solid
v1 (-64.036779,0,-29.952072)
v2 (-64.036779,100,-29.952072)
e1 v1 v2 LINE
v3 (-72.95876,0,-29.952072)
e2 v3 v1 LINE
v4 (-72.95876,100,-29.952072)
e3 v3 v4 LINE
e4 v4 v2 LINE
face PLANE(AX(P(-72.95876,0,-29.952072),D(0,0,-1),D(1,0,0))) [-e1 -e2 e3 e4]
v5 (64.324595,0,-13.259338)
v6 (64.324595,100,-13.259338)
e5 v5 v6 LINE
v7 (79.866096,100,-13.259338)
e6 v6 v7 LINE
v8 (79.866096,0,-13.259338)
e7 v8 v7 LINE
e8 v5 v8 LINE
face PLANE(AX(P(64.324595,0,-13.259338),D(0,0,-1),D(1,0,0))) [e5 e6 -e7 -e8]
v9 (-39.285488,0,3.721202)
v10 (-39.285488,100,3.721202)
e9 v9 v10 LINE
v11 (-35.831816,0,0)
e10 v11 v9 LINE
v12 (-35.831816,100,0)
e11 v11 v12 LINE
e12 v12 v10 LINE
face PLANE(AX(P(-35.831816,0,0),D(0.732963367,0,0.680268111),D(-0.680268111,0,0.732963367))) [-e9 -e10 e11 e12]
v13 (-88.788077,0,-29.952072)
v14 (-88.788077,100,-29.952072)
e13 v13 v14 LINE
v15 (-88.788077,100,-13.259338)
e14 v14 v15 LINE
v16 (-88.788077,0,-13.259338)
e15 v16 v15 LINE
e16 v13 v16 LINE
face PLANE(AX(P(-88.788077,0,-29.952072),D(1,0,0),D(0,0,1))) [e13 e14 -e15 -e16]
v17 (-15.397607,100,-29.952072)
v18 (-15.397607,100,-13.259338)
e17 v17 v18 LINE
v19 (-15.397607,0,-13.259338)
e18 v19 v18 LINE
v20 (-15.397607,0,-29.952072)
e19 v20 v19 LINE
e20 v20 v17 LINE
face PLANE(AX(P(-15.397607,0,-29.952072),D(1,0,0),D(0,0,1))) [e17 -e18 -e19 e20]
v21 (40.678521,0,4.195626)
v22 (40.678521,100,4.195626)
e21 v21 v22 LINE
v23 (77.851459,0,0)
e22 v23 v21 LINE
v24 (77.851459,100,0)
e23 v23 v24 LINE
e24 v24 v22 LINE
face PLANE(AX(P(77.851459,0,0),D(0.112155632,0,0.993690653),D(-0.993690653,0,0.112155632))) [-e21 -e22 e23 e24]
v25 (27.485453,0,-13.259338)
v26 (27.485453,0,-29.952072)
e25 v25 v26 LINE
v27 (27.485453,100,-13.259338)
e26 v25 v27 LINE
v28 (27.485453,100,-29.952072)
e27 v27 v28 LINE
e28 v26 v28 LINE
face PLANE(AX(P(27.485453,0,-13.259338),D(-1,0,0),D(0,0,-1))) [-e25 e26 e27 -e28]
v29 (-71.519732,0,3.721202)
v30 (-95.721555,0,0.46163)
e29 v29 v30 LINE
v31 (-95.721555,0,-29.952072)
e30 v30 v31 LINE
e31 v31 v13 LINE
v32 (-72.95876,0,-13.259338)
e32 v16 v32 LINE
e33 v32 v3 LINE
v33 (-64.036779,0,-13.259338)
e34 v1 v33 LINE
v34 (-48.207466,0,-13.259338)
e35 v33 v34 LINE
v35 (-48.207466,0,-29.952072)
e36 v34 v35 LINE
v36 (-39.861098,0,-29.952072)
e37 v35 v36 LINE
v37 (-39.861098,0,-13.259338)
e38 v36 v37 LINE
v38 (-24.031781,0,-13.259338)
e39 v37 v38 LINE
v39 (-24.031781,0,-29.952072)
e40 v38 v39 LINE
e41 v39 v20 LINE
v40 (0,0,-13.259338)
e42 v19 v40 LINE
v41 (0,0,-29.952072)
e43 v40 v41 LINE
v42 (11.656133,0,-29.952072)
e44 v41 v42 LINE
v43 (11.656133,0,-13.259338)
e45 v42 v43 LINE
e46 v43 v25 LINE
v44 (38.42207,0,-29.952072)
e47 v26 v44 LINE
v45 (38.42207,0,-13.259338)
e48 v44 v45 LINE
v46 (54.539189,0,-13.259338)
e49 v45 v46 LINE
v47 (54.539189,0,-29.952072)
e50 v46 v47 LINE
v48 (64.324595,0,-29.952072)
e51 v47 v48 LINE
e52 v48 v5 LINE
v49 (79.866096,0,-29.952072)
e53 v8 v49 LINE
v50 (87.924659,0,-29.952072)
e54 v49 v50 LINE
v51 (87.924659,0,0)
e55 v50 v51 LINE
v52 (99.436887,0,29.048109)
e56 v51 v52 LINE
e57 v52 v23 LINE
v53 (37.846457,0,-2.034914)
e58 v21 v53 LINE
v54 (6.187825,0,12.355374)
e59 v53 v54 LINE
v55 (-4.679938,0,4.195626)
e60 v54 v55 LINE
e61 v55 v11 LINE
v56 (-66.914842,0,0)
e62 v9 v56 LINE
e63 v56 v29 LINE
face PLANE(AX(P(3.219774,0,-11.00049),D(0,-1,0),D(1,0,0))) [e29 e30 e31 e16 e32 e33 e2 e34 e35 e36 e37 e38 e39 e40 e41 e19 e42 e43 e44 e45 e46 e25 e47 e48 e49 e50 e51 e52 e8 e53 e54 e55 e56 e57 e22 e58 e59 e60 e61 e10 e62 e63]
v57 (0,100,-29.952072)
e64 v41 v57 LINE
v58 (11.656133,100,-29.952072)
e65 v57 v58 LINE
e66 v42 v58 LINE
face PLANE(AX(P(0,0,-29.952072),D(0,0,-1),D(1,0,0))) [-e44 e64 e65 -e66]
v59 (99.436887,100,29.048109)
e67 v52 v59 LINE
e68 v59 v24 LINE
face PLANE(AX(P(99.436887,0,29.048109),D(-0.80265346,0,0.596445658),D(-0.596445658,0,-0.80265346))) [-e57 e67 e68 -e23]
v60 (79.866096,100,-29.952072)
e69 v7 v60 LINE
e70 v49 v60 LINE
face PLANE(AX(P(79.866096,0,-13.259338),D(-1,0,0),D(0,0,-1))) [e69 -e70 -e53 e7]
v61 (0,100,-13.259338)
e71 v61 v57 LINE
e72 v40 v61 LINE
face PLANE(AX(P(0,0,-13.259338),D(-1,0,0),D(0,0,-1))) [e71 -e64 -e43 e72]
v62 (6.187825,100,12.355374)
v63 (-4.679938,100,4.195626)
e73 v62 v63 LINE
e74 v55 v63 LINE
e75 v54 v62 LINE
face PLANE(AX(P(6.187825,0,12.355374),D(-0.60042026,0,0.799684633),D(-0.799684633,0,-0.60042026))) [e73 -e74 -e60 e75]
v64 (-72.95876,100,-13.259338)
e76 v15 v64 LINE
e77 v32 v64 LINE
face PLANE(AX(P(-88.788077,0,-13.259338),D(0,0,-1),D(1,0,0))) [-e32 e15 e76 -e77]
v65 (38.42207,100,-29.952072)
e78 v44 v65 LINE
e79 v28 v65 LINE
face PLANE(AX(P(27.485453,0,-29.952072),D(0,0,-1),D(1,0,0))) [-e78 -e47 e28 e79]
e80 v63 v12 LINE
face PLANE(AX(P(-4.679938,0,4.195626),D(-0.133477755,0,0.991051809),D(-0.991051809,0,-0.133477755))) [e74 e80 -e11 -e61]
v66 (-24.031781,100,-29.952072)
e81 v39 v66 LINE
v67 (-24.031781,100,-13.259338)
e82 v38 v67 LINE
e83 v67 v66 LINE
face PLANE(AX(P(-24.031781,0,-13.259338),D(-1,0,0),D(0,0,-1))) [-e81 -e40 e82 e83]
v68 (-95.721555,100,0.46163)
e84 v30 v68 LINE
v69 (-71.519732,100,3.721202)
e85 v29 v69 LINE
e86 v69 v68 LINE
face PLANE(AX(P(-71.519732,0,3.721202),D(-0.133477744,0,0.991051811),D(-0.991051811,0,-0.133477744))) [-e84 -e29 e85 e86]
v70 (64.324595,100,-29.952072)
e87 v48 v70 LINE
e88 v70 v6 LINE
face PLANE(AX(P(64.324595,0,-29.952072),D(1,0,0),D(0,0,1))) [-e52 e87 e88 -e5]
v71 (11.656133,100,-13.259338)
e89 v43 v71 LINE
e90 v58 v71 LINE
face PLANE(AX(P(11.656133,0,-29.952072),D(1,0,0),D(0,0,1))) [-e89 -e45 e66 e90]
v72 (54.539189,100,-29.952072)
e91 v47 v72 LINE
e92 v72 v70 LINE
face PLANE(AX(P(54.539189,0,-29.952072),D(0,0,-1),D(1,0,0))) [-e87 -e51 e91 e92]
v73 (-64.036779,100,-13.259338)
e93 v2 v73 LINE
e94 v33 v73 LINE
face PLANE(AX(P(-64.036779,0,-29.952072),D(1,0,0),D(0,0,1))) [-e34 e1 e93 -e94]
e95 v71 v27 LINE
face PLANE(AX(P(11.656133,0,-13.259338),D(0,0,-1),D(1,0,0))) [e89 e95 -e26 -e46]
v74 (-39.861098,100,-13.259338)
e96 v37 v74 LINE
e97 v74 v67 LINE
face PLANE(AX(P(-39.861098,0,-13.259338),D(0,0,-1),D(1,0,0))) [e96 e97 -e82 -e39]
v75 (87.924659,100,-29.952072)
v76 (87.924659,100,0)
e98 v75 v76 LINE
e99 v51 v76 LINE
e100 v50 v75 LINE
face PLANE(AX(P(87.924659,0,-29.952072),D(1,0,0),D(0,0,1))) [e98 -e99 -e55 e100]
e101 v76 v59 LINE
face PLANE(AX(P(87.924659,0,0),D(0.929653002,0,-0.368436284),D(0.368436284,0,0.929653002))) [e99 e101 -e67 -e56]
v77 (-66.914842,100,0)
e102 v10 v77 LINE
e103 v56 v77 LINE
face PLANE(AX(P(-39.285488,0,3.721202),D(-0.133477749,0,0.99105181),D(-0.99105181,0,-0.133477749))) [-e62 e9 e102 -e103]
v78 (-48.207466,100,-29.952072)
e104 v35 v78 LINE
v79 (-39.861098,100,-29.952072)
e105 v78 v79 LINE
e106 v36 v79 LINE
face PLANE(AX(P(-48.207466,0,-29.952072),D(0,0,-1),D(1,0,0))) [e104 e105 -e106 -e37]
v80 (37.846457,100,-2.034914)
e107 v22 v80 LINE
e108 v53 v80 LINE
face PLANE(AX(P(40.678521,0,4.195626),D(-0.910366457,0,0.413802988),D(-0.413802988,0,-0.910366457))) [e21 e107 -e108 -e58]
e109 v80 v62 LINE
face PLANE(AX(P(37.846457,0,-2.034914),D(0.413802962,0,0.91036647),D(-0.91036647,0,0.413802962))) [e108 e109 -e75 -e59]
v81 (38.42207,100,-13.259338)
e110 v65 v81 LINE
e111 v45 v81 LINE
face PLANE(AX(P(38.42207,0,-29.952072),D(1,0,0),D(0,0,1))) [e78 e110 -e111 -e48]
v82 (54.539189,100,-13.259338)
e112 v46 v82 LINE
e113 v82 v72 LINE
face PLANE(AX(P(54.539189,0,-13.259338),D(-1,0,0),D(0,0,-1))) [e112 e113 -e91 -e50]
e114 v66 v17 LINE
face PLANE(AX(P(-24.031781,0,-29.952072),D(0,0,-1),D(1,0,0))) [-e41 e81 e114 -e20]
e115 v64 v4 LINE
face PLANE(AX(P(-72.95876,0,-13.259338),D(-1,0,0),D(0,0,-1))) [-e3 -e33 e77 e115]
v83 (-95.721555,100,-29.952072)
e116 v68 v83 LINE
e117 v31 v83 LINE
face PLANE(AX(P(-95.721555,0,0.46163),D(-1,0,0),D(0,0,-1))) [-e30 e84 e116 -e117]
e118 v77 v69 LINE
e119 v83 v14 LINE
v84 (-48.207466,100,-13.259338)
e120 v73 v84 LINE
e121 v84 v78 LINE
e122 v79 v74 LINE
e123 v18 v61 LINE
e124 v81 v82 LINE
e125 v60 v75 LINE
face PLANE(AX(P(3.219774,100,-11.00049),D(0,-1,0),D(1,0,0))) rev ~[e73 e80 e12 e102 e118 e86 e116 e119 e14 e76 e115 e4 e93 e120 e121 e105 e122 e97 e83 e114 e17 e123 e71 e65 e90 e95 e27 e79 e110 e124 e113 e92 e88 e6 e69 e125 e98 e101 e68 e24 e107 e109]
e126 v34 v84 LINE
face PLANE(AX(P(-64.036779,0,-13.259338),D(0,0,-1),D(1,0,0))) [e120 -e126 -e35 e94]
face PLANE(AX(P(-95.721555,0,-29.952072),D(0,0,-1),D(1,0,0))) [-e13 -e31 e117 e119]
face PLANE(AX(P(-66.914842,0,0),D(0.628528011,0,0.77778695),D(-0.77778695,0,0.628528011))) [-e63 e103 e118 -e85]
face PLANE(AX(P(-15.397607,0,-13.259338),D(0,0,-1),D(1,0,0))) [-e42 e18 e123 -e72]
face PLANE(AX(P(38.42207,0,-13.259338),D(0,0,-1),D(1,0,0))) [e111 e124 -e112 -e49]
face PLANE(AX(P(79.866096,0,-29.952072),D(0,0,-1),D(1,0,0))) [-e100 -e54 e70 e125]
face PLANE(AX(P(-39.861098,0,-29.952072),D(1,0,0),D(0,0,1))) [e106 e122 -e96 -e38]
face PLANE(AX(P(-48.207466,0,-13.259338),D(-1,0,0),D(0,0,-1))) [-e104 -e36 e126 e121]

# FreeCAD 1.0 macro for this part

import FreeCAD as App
import Part
import Sketcher
from FreeCAD import Vector
Q = App.Units.Quantity

doc = App.newDocument("Part")
params = doc.addObject("Spreadsheet::Sheet", "Params")
for row, (alias, value) in enumerate([
    ("pad1_length", "100 mm"),
], start=1):
    params.set(f"A{row}", alias)
    params.set(f"B{row}", "=" + value)
    params.setAlias(f"B{row}", alias)

body = doc.addObject("PartDesign::Body", "Body")

# Sketch on XZ plane
sketch1 = doc.addObject("Sketcher::SketchObject", "Sketch")
body.addObject(sketch1)
sketch1.AttachmentSupport = (doc.XZ_Plane, [""])
sketch1.MapMode = "FlatFace"
sketch1.addGeometry(Part.LineSegment(Vector(-72, 4, 0), Vector(-96, 0, 0)), False)
sketch1.addGeometry(Part.LineSegment(Vector(-96, 0, 0), Vector(-96, -30, 0)), False)
sketch1.addGeometry(Part.LineSegment(Vector(-96, -30, 0), Vector(-89, -30, 0)), False)
sketch1.addGeometry(Part.LineSegment(Vector(-89, -30, 0), Vector(-89, -13, 0)), False)
sketch1.addGeometry(Part.LineSegment(Vector(-89, -13, 0), Vector(-73, -13, 0)), False)
sketch1.addGeometry(Part.LineSegment(Vector(-73, -13, 0), Vector(-73, -30, 0)), False)
sketch1.addGeometry(Part.LineSegment(Vector(-73, -30, 0), Vector(-64, -30, 0)), False)
sketch1.addGeometry(Part.LineSegment(Vector(-64, -30, 0), Vector(-64, -13, 0)), False)
sketch1.addGeometry(Part.LineSegment(Vector(-64, -13, 0), Vector(-48, -13, 0)), False)
sketch1.addGeometry(Part.LineSegment(Vector(-48, -13, 0), Vector(-48, -30, 0)), False)
sketch1.addGeometry(Part.LineSegment(Vector(-48, -30, 0), Vector(-40, -30, 0)), False)
sketch1.addGeometry(Part.LineSegment(Vector(-40, -30, 0), Vector(-40, -13, 0)), False)
sketch1.addGeometry(Part.LineSegment(Vector(-40, -13, 0), Vector(-24, -13, 0)), False)
sketch1.addGeometry(Part.LineSegment(Vector(-24, -13, 0), Vector(-24, -30, 0)), False)
sketch1.addGeometry(Part.LineSegment(Vector(-24, -30, 0), Vector(-15, -30, 0)), False)
sketch1.addGeometry(Part.LineSegment(Vector(-15, -30, 0), Vector(-15, -13, 0)), False)
sketch1.addGeometry(Part.LineSegment(Vector(-15, -13, 0), Vector(0, -13, 0)), False)
sketch1.addGeometry(Part.LineSegment(Vector(0, -13, 0), Vector(0, -30, 0)), False)
sketch1.addGeometry(Part.LineSegment(Vector(0, -30, 0), Vector(12, -30, 0)), False)
sketch1.addGeometry(Part.LineSegment(Vector(12, -30, 0), Vector(12, -13, 0)), False)
sketch1.addGeometry(Part.LineSegment(Vector(12, -13, 0), Vector(27, -13, 0)), False)
sketch1.addGeometry(Part.LineSegment(Vector(27, -13, 0), Vector(27, -30, 0)), False)
sketch1.addGeometry(Part.LineSegment(Vector(27, -30, 0), Vector(38, -30, 0)), False)
sketch1.addGeometry(Part.LineSegment(Vector(38, -30, 0), Vector(38, -13, 0)), False)
sketch1.addGeometry(Part.LineSegment(Vector(38, -13, 0), Vector(55, -13, 0)), False)
sketch1.addGeometry(Part.LineSegment(Vector(55, -13, 0), Vector(55, -30, 0)), False)
sketch1.addGeometry(Part.LineSegment(Vector(55, -30, 0), Vector(64, -30, 0)), False)
sketch1.addGeometry(Part.LineSegment(Vector(64, -30, 0), Vector(64, -13, 0)), False)
sketch1.addGeometry(Part.LineSegment(Vector(64, -13, 0), Vector(80, -13, 0)), False)
sketch1.addGeometry(Part.LineSegment(Vector(80, -13, 0), Vector(80, -30, 0)), False)
sketch1.addGeometry(Part.LineSegment(Vector(80, -30, 0), Vector(88, -30, 0)), False)
sketch1.addGeometry(Part.LineSegment(Vector(88, -30, 0), Vector(88, 0, 0)), False)
sketch1.addGeometry(Part.LineSegment(Vector(88, 0, 0), Vector(99, 29, 0)), False)
sketch1.addGeometry(Part.LineSegment(Vector(99, 29, 0), Vector(78, 0, 0)), False)
sketch1.addGeometry(Part.LineSegment(Vector(78, 0, 0), Vector(41, 4, 0)), False)
sketch1.addGeometry(Part.LineSegment(Vector(41, 4, 0), Vector(38, -2, 0)), False)
sketch1.addGeometry(Part.LineSegment(Vector(38, -2, 0), Vector(6, 12, 0)), False)
sketch1.addGeometry(Part.LineSegment(Vector(6, 12, 0), Vector(-5, 4, 0)), False)
sketch1.addGeometry(Part.LineSegment(Vector(-5, 4, 0), Vector(-36, 0, 0)), False)
sketch1.addGeometry(Part.LineSegment(Vector(-36, 0, 0), Vector(-39, 4, 0)), False)
sketch1.addGeometry(Part.LineSegment(Vector(-39, 4, 0), Vector(-67, 0, 0)), False)
sketch1.addGeometry(Part.LineSegment(Vector(-67, 0, 0), Vector(-72, 4, 0)), False)
sketch1.addConstraint(Sketcher.Constraint("Coincident", 0, 2, 1, 1))
sketch1.addConstraint(Sketcher.Constraint("Coincident", 1, 2, 2, 1))
sketch1.addConstraint(Sketcher.Constraint("Coincident", 2, 2, 3, 1))
sketch1.addConstraint(Sketcher.Constraint("Coincident", 3, 2, 4, 1))
sketch1.addConstraint(Sketcher.Constraint("Coincident", 4, 2, 5, 1))
sketch1.addConstraint(Sketcher.Constraint("Coincident", 5, 2, 6, 1))
sketch1.addConstraint(Sketcher.Constraint("Coincident", 6, 2, 7, 1))
sketch1.addConstraint(Sketcher.Constraint("Coincident", 7, 2, 8, 1))
sketch1.addConstraint(Sketcher.Constraint("Coincident", 8, 2, 9, 1))
sketch1.addConstraint(Sketcher.Constraint("Coincident", 9, 2, 10, 1))
sketch1.addConstraint(Sketcher.Constraint("Coincident", 10, 2, 11, 1))
sketch1.addConstraint(Sketcher.Constraint("Coincident", 11, 2, 12, 1))
sketch1.addConstraint(Sketcher.Constraint("Coincident", 12, 2, 13, 1))
sketch1.addConstraint(Sketcher.Constraint("Coincident", 13, 2, 14, 1))
sketch1.addConstraint(Sketcher.Constraint("Coincident", 14, 2, 15, 1))
sketch1.addConstraint(Sketcher.Constraint("Coincident", 15, 2, 16, 1))
sketch1.addConstraint(Sketcher.Constraint("Coincident", 16, 2, 17, 1))
sketch1.addConstraint(Sketcher.Constraint("Coincident", 17, 2, 18, 1))
sketch1.addConstraint(Sketcher.Constraint("Coincident", 18, 2, 19, 1))
sketch1.addConstraint(Sketcher.Constraint("Coincident", 19, 2, 20, 1))
sketch1.addConstraint(Sketcher.Constraint("Coincident", 20, 2, 21, 1))
sketch1.addConstraint(Sketcher.Constraint("Coincident", 21, 2, 22, 1))
sketch1.addConstraint(Sketcher.Constraint("Coincident", 22, 2, 23, 1))
sketch1.addConstraint(Sketcher.Constraint("Coincident", 23, 2, 24, 1))
sketch1.addConstraint(Sketcher.Constraint("Coincident", 24, 2, 25, 1))
sketch1.addConstraint(Sketcher.Constraint("Coincident", 25, 2, 26, 1))
sketch1.addConstraint(Sketcher.Constraint("Coincident", 26, 2, 27, 1))
sketch1.addConstraint(Sketcher.Constraint("Coincident", 27, 2, 28, 1))
sketch1.addConstraint(Sketcher.Constraint("Coincident", 28, 2, 29, 1))
sketch1.addConstraint(Sketcher.Constraint("Coincident", 29, 2, 30, 1))
sketch1.addConstraint(Sketcher.Constraint("Coincident", 30, 2, 31, 1))
sketch1.addConstraint(Sketcher.Constraint("Coincident", 31, 2, 32, 1))
sketch1.addConstraint(Sketcher.Constraint("Coincident", 32, 2, 33, 1))
sketch1.addConstraint(Sketcher.Constraint("Coincident", 33, 2, 34, 1))
sketch1.addConstraint(Sketcher.Constraint("Coincident", 34, 2, 35, 1))
sketch1.addConstraint(Sketcher.Constraint("Coincident", 35, 2, 36, 1))
sketch1.addConstraint(Sketcher.Constraint("Coincident", 36, 2, 37, 1))
sketch1.addConstraint(Sketcher.Constraint("Coincident", 37, 2, 38, 1))
sketch1.addConstraint(Sketcher.Constraint("Coincident", 38, 2, 39, 1))
sketch1.addConstraint(Sketcher.Constraint("Coincident", 39, 2, 40, 1))
sketch1.addConstraint(Sketcher.Constraint("Coincident", 40, 2, 41, 1))
sketch1.addConstraint(Sketcher.Constraint("Coincident", 41, 2, 0, 1))
sketch1.addConstraint(Sketcher.Constraint("Vertical", 1))
sketch1.addConstraint(Sketcher.Constraint("Horizontal", 2))
sketch1.addConstraint(Sketcher.Constraint("Vertical", 3))
sketch1.addConstraint(Sketcher.Constraint("Horizontal", 4))
sketch1.addConstraint(Sketcher.Constraint("Vertical", 5))
sketch1.addConstraint(Sketcher.Constraint("Horizontal", 6))
sketch1.addConstraint(Sketcher.Constraint("Vertical", 7))
sketch1.addConstraint(Sketcher.Constraint("Horizontal", 8))
sketch1.addConstraint(Sketcher.Constraint("Vertical", 9))
sketch1.addConstraint(Sketcher.Constraint("Horizontal", 10))
sketch1.addConstraint(Sketcher.Constraint("Vertical", 11))
sketch1.addConstraint(Sketcher.Constraint("Horizontal", 12))
sketch1.addConstraint(Sketcher.Constraint("Vertical", 13))
sketch1.addConstraint(Sketcher.Constraint("Horizontal", 14))
sketch1.addConstraint(Sketcher.Constraint("Vertical", 15))
sketch1.addConstraint(Sketcher.Constraint("Horizontal", 16))
sketch1.addConstraint(Sketcher.Constraint("Vertical", 17))
sketch1.addConstraint(Sketcher.Constraint("Horizontal", 18))
sketch1.addConstraint(Sketcher.Constraint("Vertical", 19))
sketch1.addConstraint(Sketcher.Constraint("Horizontal", 20))
sketch1.addConstraint(Sketcher.Constraint("Vertical", 21))
sketch1.addConstraint(Sketcher.Constraint("Horizontal", 22))
sketch1.addConstraint(Sketcher.Constraint("Vertical", 23))
sketch1.addConstraint(Sketcher.Constraint("Horizontal", 24))
sketch1.addConstraint(Sketcher.Constraint("Vertical", 25))
sketch1.addConstraint(Sketcher.Constraint("Horizontal", 26))
sketch1.addConstraint(Sketcher.Constraint("Vertical", 27))
sketch1.addConstraint(Sketcher.Constraint("Horizontal", 28))
sketch1.addConstraint(Sketcher.Constraint("Vertical", 29))
sketch1.addConstraint(Sketcher.Constraint("Horizontal", 30))
sketch1.addConstraint(Sketcher.Constraint("Vertical", 31))
sketch1.addConstraint(Sketcher.Constraint("PointOnObject", 16, 2, -2))
sketch1.addConstraint(Sketcher.Constraint("PointOnObject", 31, 2, -1))
sketch1.addConstraint(Sketcher.Constraint("PointOnObject", 33, 2, -1))
sketch1.addConstraint(Sketcher.Constraint("PointOnObject", 38, 2, -1))
sketch1.addConstraint(Sketcher.Constraint("PointOnObject", 40, 2, -1))
sketch1.addConstraint(Sketcher.Constraint("Perpendicular", 35, 36))
sketch1.addConstraint(Sketcher.Constraint("Parallel", 0, 38))
sketch1.addConstraint(Sketcher.Constraint("Parallel", 38, 40))
sketch1.addConstraint(Sketcher.Constraint("Horizontal", 2, 2, 5, 2))
sketch1.addConstraint(Sketcher.Constraint("Horizontal", 4, 2, 7, 2))
sketch1.addConstraint(Sketcher.Constraint("Horizontal", 6, 2, 9, 2))
sketch1.addConstraint(Sketcher.Constraint("Horizontal", 8, 2, 11, 2))
sketch1.addConstraint(Sketcher.Constraint("Horizontal", 10, 2, 13, 2))
sketch1.addConstraint(Sketcher.Constraint("Horizontal", 12, 2, 15, 2))
sketch1.addConstraint(Sketcher.Constraint("Horizontal", 14, 2, 17, 2))
sketch1.addConstraint(Sketcher.Constraint("Horizontal", 16, 2, 19, 2))
sketch1.addConstraint(Sketcher.Constraint("Horizontal", 18, 2, 21, 2))
sketch1.addConstraint(Sketcher.Constraint("Horizontal", 20, 2, 23, 2))
sketch1.addConstraint(Sketcher.Constraint("Horizontal", 22, 2, 25, 2))
sketch1.addConstraint(Sketcher.Constraint("Horizontal", 24, 2, 27, 2))
sketch1.addConstraint(Sketcher.Constraint("Horizontal", 26, 2, 29, 2))
sketch1.addConstraint(Sketcher.Constraint("Horizontal", 34, 2, 37, 2))
sketch1.addConstraint(Sketcher.Constraint("Horizontal", 39, 2, 41, 2))
sketch1.addConstraint(Sketcher.Constraint("Equal", 4, 12))
sketch1.addConstraint(Sketcher.Constraint("Angle", 37, Q("-143.099998 deg")))
sketch1.addConstraint(Sketcher.Constraint("DistanceX", 28, 1, 28, 2, 15.541501))
sketch1.addConstraint(Sketcher.Constraint("Distance", 33, 36.1901))
sketch1.addConstraint(Sketcher.Constraint("Distance", 36, 34.775701))
sketch1.addConstraint(Sketcher.Constraint("DistanceX", 6, 1, 6, 2, 8.921981))
sketch1.addConstraint(Sketcher.Constraint("DistanceX", 20, 1, 20, 2, 15.82932))
sketch1.addConstraint(Sketcher.Constraint("DistanceX", 24, 1, 24, 2, 16.117119))
sketch1.addConstraint(Sketcher.Constraint("DistanceY", -1, 1, 39, 2, 3.721202))
sketch1.addConstraint(Sketcher.Constraint("DistanceX", 2, 2, 6, 2, 24.751298))
sketch1.addConstraint(Sketcher.Constraint("DistanceX", 33, 2, 31, 2, 10.0732))
sketch1.addConstraint(Sketcher.Constraint("Distance", 0, 24.420341))
sketch1.addConstraint(Sketcher.Constraint("Distance", 35, 6.843991))
sketch1.addConstraint(Sketcher.Constraint("Distance", 37, 13.590061))
sketch1.addConstraint(Sketcher.Constraint("Distance", 40, 27.878819))
sketch1.addConstraint(Sketcher.Constraint("DistanceX", 2, 1, 2, 2, 6.933478))
sketch1.addConstraint(Sketcher.Constraint("DistanceX", 8, 1, 8, 2, 15.829313))
sketch1.addConstraint(Sketcher.Constraint("DistanceX", 10, 1, 10, 2, 8.346368))
sketch1.addConstraint(Sketcher.Constraint("DistanceX", 14, 1, 14, 2, 8.634174))
sketch1.addConstraint(Sketcher.Constraint("DistanceX", 16, 1, 16, 2, 15.397607))
sketch1.addConstraint(Sketcher.Constraint("DistanceX", 18, 1, 18, 2, 11.656133))
sketch1.addConstraint(Sketcher.Constraint("DistanceX", 22, 1, 22, 2, 10.936617))
sketch1.addConstraint(Sketcher.Constraint("DistanceX", 26, 1, 26, 2, 9.785406))
sketch1.addConstraint(Sketcher.Constraint("DistanceX", 30, 1, 30, 2, 8.058563))
sketch1.addConstraint(Sketcher.Constraint("DistanceY", 1, 2, 1, 1, 30.413702))
sketch1.addConstraint(Sketcher.Constraint("DistanceY", 3, 1, 3, 2, 16.692734))
sketch1.addConstraint(Sketcher.Constraint("DistanceY", -1, 1, 32, 2, 29.048109))
sketch1.addConstraint(Sketcher.Constraint("DistanceX", -1, 1, 34, 2, 40.678521))
sketch1.addConstraint(Sketcher.Constraint("DistanceX", 40, 2, -1, 1, 66.914842))
sketch1.addConstraint(Sketcher.Constraint("DistanceY", 22, 2, 35, 2, 27.917158))
pad1 = doc.addObject("PartDesign::Pad", "Pad")
body.addObject(pad1)
pad1.Profile = sketch1
pad1.setExpression("Length", "Params.pad1_length")
pad1.Reversed = True

doc.recompute()
